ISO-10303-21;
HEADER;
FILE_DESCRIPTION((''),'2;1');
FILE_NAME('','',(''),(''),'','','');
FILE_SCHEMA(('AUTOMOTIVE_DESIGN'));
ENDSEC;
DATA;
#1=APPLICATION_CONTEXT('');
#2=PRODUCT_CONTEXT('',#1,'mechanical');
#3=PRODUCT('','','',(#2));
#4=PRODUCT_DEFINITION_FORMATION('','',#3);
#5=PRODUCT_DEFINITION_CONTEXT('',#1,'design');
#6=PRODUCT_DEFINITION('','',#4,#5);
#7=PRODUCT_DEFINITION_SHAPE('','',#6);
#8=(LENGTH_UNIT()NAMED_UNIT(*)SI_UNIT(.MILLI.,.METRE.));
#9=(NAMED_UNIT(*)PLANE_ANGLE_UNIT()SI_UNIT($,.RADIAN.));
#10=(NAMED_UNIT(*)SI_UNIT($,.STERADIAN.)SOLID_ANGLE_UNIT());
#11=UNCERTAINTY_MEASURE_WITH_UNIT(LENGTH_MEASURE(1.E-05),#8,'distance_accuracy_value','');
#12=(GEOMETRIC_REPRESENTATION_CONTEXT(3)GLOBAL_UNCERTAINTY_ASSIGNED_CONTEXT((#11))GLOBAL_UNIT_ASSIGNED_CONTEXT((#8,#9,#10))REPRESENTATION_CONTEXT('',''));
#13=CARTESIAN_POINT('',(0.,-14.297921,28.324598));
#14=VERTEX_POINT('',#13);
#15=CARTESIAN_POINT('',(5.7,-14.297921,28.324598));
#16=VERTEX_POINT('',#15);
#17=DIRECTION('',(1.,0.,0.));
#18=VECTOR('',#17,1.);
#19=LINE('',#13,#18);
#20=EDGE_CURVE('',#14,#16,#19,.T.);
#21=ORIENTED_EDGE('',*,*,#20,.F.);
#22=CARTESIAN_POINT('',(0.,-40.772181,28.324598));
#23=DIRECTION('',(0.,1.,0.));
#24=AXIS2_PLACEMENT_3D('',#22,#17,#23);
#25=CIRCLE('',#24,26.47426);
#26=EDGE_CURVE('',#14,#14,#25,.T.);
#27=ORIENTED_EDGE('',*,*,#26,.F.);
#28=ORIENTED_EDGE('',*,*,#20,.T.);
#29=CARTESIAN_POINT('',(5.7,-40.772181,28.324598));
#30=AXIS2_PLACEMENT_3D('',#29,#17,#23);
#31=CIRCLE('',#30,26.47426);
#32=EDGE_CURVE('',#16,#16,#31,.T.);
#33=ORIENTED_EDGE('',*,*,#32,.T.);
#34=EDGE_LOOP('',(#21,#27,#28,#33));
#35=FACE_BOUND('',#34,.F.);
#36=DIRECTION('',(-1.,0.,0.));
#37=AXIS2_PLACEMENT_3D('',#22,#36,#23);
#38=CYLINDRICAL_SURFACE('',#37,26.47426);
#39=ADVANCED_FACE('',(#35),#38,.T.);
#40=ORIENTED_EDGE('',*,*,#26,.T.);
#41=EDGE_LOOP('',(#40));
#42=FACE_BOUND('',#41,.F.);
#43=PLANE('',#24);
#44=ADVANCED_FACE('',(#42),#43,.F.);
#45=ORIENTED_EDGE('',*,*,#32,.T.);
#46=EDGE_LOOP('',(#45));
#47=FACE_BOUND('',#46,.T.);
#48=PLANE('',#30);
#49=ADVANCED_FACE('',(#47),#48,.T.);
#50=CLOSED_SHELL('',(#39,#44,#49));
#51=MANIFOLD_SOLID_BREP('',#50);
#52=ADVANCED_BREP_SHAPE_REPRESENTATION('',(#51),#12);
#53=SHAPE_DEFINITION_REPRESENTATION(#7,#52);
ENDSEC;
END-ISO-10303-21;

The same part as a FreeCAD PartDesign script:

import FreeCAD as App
import Part
import Sketcher
from FreeCAD import Vector

doc = App.newDocument("Part")
body = doc.addObject("PartDesign::Body", "Body")

# Sketch on YZ plane
sketch1 = doc.addObject("Sketcher::SketchObject", "Sketch")
body.addObject(sketch1)
sketch1.AttachmentSupport = (doc.YZ_Plane, [""])
sketch1.MapMode = "FlatFace"
sketch1.addGeometry(Part.Circle(Vector(-41, 28, 0), Vector(0, 0, 1), 26), False)
sketch1.addConstraint([
    Sketcher.Constraint("Diameter", 0, 52.94852),
    Sketcher.Constraint("DistanceY", -1, 1, 0, 3, 28.324598),
    Sketcher.Constraint("DistanceX", 0, 3, -1, 1, 40.772181),
])
pad1 = doc.addObject("PartDesign::Pad", "Pad")
body.addObject(pad1)
pad1.Profile = sketch1
pad1.Length = 5.7

doc.recompute()
